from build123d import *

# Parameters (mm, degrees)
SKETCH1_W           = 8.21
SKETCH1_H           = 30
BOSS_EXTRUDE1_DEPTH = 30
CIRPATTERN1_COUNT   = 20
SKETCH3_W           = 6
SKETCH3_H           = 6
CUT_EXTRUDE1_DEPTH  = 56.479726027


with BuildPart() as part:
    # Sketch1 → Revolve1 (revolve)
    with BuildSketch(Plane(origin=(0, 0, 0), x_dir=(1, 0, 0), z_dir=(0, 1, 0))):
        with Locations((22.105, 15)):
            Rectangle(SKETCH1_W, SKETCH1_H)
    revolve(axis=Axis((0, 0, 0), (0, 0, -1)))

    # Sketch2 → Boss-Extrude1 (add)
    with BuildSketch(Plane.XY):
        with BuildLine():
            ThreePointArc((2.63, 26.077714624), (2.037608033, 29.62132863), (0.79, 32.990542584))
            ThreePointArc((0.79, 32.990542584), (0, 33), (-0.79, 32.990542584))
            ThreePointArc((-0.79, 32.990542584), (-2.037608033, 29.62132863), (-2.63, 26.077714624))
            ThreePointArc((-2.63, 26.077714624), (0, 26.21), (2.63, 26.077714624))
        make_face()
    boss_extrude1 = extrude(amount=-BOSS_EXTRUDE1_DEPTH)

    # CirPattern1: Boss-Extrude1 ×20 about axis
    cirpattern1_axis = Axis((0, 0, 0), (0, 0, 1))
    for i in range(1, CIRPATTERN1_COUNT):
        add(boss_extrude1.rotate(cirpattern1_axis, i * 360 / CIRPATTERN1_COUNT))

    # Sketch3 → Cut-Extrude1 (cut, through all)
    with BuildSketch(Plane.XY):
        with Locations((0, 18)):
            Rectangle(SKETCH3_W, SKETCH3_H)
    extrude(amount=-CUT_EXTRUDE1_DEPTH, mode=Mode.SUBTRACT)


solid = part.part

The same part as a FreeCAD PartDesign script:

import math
import FreeCAD as App
import Part
import Sketcher

V = App.Vector

doc = App.newDocument("Part")
body = doc.addObject("PartDesign::Body", "Body")

sketch1 = body.newObject("Sketcher::SketchObject", "Sketch")
sketch1.AttachmentSupport = (doc.getObject("XZ_Plane"), [""])
sketch1.MapMode = "FlatFace"
sketch1.addGeometry([
    Part.LineSegment(V(18, -30, 0), V(18, 0, 0)),
    Part.LineSegment(V(18, 0, 0), V(26, 0, 0)),
    Part.LineSegment(V(26, 0, 0), V(26, -30, 0)),
    Part.LineSegment(V(26, -30, 0), V(18, -30, 0)),
], False)
sketch1.addConstraint([
    Sketcher.Constraint("Coincident", 0, 2, 1, 1),
    Sketcher.Constraint("Coincident", 1, 2, 2, 1),
    Sketcher.Constraint("Coincident", 2, 2, 3, 1),
    Sketcher.Constraint("Coincident", 3, 2, 0, 1),
    Sketcher.Constraint("Vertical", 0),
    Sketcher.Constraint("Horizontal", 1),
    Sketcher.Constraint("Vertical", 2),
    Sketcher.Constraint("Horizontal", 3),
    Sketcher.Constraint("PointOnObject", 0, 2, -1),
    Sketcher.Constraint("DistanceY", 0, 1, 0, 2, 30.0),
    Sketcher.Constraint("DistanceX", -1, 1, 0, 2, 18.0),
    Sketcher.Constraint("DistanceX", 1, 1, 1, 2, 8.21),
])
revolution = body.newObject("PartDesign::Revolution", "Revolution")
revolution.Profile = sketch1
revolution.ReferenceAxis = (sketch1, ["V_Axis"])
revolution.Angle = 360

sketch2 = body.newObject("Sketcher::SketchObject", "Sketch001")
sketch2.AttachmentSupport = (doc.getObject("XY_Plane"), [""])
sketch2.MapMode = "FlatFace"
sketch2.addGeometry([
    Part.ArcOfCircle(Part.Circle(V(-16.4, 24.7, 0), V(0, 0, 1), 19), math.radians(4), math.radians(26)),
    Part.ArcOfCircle(Part.Circle(V(0, 0, 0), V(0, 0, 1), 33), math.radians(88.63), math.radians(91.37)),
    Part.ArcOfCircle(Part.Circle(V(16.4, 24.7, 0), V(0, 0, 1), 19), math.radians(154), math.radians(176)),
    Part.ArcOfCircle(Part.Circle(V(0, 0, 0), V(0, 0, 1), 26.2), math.radians(84.24), math.radians(95.76)),
], False)
sketch2.addConstraint([
    Sketcher.Constraint("Coincident", 0, 2, 1, 1),
    Sketcher.Constraint("Coincident", 1, 2, 2, 1),
    Sketcher.Constraint("Coincident", 2, 2, 3, 2),
    Sketcher.Constraint("Coincident", 3, 1, 0, 1),
    Sketcher.Constraint("Coincident", 1, 3, -1, 1),
    Sketcher.Constraint("Coincident", 3, 3, -1, 1),
    Sketcher.Constraint("Equal", 0, 2),
    Sketcher.Constraint("Symmetric", 0, 3, 2, 3, -2),
    Sketcher.Constraint("Radius", 1, 32.999999),
    Sketcher.Constraint("Radius", 3, 26.21),
    Sketcher.Constraint("DistanceX", -1, 1, 0, 2, 0.79),
    Sketcher.Constraint("DistanceX", 2, 2, -1, 1, 2.63),
    Sketcher.Constraint("Radius", 0, 19.03772),
])
pad1 = body.newObject("PartDesign::Pad", "Pad")
pad1.Profile = sketch2
pad1.Length = 30
pad1.Reversed = True
doc.recompute()

polarpattern = body.newObject("PartDesign::PolarPattern", "PolarPattern")
polarpattern.Originals = [pad1]
polarpattern.Axis = (doc.getObject("Z_Axis"), [""])
polarpattern.Angle = 360
polarpattern.Occurrences = 20
body.Tip = polarpattern

sketch3 = body.newObject("Sketcher::SketchObject", "Sketch002")
sketch3.AttachmentSupport = (doc.getObject("XY_Plane"), [""])
sketch3.MapMode = "FlatFace"
sketch3.addGeometry([
    Part.LineSegment(V(-3, 21, 0), V(-3, 15, 0)),
    Part.LineSegment(V(-3, 15, 0), V(3, 15, 0)),
    Part.LineSegment(V(3, 15, 0), V(3, 21, 0)),
    Part.LineSegment(V(3, 21, 0), V(-3, 21, 0)),
], False)
sketch3.addConstraint([
    Sketcher.Constraint("Coincident", 0, 2, 1, 1),
    Sketcher.Constraint("Coincident", 1, 2, 2, 1),
    Sketcher.Constraint("Coincident", 2, 2, 3, 1),
    Sketcher.Constraint("Coincident", 3, 2, 0, 1),
    Sketcher.Constraint("Vertical", 0),
    Sketcher.Constraint("Horizontal", 1),
    Sketcher.Constraint("Vertical", 2),
    Sketcher.Constraint("Horizontal", 3),
    Sketcher.Constraint("Equal", 3, 0),
    Sketcher.Constraint("DistanceX", 1, 1, 1, 2, 6.0),
    Sketcher.Constraint("DistanceX", 0, 2, -1, 1, 3.0),
    Sketcher.Constraint("DistanceY", -1, 1, 0, 2, 15.0),
])
pocket1 = body.newObject("PartDesign::Pocket", "Pocket")
pocket1.Profile = sketch3
pocket1.Type = "ThroughAll"

doc.recompute()
